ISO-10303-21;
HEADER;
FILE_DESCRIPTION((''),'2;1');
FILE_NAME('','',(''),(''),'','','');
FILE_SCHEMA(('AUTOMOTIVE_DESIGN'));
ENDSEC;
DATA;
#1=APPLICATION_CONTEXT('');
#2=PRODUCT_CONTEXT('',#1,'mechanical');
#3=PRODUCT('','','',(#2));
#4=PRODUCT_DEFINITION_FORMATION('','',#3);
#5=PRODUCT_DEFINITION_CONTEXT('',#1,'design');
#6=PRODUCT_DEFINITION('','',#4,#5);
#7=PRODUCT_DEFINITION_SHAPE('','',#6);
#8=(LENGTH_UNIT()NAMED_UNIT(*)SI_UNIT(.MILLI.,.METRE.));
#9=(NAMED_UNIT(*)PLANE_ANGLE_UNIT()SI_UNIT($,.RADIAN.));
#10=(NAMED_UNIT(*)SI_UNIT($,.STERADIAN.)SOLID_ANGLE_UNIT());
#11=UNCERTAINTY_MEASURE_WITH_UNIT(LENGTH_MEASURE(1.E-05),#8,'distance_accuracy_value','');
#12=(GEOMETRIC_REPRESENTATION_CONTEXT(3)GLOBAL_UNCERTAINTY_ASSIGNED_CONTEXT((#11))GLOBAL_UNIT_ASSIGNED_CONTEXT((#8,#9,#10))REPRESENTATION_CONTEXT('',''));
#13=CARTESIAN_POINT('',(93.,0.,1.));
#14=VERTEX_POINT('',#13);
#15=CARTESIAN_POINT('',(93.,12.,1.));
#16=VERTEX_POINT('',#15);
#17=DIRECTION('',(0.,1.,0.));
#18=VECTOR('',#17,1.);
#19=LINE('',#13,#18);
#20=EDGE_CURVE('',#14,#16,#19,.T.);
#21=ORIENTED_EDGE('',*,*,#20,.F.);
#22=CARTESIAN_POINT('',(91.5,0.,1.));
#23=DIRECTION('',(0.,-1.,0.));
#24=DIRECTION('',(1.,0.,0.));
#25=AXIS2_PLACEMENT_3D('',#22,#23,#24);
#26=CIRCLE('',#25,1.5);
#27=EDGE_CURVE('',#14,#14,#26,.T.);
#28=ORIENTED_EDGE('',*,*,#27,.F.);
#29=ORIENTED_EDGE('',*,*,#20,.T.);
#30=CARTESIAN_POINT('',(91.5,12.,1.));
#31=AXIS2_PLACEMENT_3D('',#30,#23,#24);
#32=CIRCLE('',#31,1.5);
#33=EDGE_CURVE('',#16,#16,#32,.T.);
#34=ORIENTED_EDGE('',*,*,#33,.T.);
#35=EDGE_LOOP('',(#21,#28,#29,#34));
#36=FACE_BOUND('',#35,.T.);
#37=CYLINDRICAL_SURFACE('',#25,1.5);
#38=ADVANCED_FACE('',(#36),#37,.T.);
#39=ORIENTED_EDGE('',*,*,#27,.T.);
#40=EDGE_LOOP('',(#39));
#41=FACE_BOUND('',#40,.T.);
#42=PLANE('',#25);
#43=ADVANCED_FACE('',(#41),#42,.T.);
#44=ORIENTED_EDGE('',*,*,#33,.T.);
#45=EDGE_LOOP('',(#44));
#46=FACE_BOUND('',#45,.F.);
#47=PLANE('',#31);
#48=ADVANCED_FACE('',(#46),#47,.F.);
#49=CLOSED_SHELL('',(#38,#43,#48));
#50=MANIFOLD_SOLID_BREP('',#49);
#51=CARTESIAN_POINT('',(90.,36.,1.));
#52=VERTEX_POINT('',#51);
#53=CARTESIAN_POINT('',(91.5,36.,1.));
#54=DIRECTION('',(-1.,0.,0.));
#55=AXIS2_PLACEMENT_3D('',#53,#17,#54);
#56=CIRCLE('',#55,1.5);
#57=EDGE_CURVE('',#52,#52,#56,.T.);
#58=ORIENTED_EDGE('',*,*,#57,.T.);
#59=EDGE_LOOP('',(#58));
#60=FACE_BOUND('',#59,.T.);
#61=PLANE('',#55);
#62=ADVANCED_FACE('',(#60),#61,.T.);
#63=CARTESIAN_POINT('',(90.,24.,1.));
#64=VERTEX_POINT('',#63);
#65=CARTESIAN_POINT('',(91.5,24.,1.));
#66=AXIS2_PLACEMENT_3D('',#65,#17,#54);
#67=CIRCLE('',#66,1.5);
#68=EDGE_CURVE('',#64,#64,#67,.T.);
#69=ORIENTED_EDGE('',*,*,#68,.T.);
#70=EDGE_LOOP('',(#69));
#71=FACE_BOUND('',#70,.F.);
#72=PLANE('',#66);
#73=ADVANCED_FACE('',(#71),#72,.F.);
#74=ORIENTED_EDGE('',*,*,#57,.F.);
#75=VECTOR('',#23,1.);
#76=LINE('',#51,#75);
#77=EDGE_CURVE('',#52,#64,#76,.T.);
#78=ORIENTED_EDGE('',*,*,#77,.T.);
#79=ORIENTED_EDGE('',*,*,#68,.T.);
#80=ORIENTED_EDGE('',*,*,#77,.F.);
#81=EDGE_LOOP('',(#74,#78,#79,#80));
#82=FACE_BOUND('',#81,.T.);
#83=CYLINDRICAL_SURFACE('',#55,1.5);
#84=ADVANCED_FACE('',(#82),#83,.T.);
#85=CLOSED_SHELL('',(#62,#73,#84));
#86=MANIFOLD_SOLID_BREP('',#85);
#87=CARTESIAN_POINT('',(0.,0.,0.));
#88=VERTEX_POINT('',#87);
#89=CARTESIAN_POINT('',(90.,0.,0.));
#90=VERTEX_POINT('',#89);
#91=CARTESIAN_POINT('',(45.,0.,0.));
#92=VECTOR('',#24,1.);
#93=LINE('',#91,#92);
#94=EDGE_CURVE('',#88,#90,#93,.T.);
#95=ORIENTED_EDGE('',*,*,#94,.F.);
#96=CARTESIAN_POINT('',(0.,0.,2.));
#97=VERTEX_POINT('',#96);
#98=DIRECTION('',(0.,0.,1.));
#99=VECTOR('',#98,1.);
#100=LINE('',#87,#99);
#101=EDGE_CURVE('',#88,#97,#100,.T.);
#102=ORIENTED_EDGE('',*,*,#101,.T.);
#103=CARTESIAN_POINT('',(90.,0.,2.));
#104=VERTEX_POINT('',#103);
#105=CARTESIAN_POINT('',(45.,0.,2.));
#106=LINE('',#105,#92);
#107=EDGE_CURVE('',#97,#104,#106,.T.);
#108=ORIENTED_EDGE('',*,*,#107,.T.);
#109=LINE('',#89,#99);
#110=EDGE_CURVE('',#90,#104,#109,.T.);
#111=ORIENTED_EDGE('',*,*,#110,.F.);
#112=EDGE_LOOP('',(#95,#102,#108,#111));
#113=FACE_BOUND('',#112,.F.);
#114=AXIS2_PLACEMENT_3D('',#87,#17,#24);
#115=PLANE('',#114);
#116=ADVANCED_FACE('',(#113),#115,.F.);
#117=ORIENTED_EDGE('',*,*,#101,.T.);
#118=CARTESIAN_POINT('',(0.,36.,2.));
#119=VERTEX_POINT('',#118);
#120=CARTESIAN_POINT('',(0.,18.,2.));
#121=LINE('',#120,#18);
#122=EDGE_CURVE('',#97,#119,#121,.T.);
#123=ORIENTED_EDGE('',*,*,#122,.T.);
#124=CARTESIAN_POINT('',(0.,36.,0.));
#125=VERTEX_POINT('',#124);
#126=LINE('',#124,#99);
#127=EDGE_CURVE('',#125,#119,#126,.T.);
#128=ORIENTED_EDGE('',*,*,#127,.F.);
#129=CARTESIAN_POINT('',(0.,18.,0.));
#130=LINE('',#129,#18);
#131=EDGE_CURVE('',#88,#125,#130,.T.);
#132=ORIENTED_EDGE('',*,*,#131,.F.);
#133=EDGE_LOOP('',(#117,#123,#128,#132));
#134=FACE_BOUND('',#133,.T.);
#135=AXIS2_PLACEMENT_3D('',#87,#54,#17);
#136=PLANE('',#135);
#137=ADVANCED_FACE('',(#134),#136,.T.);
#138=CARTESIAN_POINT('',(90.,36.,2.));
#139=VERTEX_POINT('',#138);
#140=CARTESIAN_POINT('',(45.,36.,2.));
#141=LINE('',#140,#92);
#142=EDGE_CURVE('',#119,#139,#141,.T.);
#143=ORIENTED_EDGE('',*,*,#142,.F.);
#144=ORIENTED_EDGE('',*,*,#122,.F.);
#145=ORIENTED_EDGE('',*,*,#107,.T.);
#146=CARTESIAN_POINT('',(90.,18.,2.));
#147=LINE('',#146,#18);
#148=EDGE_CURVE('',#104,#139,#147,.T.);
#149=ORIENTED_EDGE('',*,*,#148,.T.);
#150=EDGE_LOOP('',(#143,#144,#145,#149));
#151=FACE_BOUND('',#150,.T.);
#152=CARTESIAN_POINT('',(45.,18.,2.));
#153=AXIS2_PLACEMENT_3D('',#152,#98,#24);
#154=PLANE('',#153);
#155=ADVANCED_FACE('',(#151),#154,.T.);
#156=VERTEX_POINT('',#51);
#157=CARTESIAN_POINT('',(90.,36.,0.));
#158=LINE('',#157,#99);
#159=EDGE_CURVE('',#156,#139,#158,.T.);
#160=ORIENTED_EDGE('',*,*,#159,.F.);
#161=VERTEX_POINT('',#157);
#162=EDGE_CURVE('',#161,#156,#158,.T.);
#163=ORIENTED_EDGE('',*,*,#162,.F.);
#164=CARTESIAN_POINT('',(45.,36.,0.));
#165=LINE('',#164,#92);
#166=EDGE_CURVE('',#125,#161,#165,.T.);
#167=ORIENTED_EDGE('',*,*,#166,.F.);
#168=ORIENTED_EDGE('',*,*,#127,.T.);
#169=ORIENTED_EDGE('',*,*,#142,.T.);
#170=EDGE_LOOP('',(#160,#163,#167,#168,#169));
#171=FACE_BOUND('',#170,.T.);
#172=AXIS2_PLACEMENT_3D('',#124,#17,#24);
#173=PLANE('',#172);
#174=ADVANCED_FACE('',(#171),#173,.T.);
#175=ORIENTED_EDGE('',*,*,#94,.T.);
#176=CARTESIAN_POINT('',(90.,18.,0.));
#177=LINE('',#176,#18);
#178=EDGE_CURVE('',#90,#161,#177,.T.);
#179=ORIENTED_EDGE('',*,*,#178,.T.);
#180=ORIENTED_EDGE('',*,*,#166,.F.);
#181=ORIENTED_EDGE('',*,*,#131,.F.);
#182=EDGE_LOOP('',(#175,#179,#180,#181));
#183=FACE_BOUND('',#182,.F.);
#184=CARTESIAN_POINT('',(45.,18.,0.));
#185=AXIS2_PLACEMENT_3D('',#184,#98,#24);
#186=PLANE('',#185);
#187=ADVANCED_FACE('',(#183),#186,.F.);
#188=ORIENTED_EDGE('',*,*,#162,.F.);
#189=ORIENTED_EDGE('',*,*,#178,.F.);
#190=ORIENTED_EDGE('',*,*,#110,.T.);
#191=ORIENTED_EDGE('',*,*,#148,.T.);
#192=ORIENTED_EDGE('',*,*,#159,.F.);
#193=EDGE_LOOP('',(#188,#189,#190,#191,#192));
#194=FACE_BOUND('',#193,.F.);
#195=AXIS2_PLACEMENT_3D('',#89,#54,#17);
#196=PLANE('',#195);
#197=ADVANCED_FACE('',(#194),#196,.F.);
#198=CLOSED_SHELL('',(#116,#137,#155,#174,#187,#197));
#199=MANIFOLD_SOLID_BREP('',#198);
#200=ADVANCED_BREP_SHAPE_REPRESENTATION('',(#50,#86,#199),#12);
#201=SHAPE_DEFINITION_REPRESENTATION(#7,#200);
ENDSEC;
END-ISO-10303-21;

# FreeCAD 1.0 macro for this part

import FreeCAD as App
import Part
import Sketcher
Q = App.Units.Quantity

doc = App.newDocument("Part")
body = doc.addObject("PartDesign::Body", "Body")
body.AllowCompound = True

# Sketch on XY plane
sketch1 = body.newObject("Sketcher::SketchObject", "Sketch")
sketch1.AttachmentSupport = (doc.getObject("XY_Plane"), [""])
sketch1.MapMode = "FlatFace"
sketch1.addGeometry([
    Part.LineSegment(App.Vector(0, 36, 0), App.Vector(0, 0, 0)),
    Part.LineSegment(App.Vector(0, 0, 0), App.Vector(90, 0, 0)),
    Part.LineSegment(App.Vector(90, 0, 0), App.Vector(90, 36, 0)),
    Part.LineSegment(App.Vector(90, 36, 0), App.Vector(0, 36, 0)),
], False)
sketch1.addConstraint([
    Sketcher.Constraint("Coincident", 0, 2, 1, 1),
    Sketcher.Constraint("Coincident", 1, 2, 2, 1),
    Sketcher.Constraint("Coincident", 2, 2, 3, 1),
    Sketcher.Constraint("Coincident", 3, 2, 0, 1),
    Sketcher.Constraint("Vertical", 0),
    Sketcher.Constraint("Horizontal", 1),
    Sketcher.Constraint("Vertical", 2),
    Sketcher.Constraint("Horizontal", 3),
    Sketcher.Constraint("Coincident", 0, 2, -1, 1),
    Sketcher.Constraint("DistanceX", 1, 1, 1, 2, Q("90 mm")),
    Sketcher.Constraint("DistanceY", 0, 2, 0, 1, Q("36 mm")),
])
pad1 = body.newObject("PartDesign::Pad", "Pad")
pad1.Profile = sketch1
pad1.Length = 2

# Sketch on XZ plane
sketch2 = body.newObject("Sketcher::SketchObject", "Sketch001")
sketch2.AttachmentSupport = (doc.getObject("XZ_Plane"), [""])
sketch2.MapMode = "FlatFace"
sketch2.AttachmentOffset = App.Placement(App.Vector(0, 0, -36), App.Rotation())
sketch2.addGeometry(Part.Circle(App.Vector(91.5, 1, 0), App.Vector(0, 0, 1), 1.5), False)
sketch2.addConstraint([
    Sketcher.Constraint("Diameter", 0, Q("3 mm")),
    Sketcher.Constraint("DistanceY", -1, 1, 0, 3, Q("1 mm")),
    Sketcher.Constraint("DistanceX", -1, 1, 0, 3, Q("91.5 mm")),
])
pad2 = body.newObject("PartDesign::Pad", "Pad001")
pad2.Profile = sketch2
pad2.Length = 12
body2 = doc.addObject("PartDesign::Body", "Body001")

# Sketch on XZ plane
sketch3 = body2.newObject("Sketcher::SketchObject", "Sketch002")
sketch3.AttachmentSupport = (doc.getObject("XZ_Plane001"), [""])
sketch3.MapMode = "FlatFace"
sketch3.addGeometry(Part.Circle(App.Vector(91.5, 1, 0), App.Vector(0, 0, 1), 1.5), False)
sketch3.addConstraint([
    Sketcher.Constraint("Diameter", 0, Q("3 mm")),
    Sketcher.Constraint("DistanceY", -1, 1, 0, 3, Q("1 mm")),
    Sketcher.Constraint("DistanceX", -1, 1, 0, 3, Q("91.5 mm")),
])
pad3 = body2.newObject("PartDesign::Pad", "Pad002")
pad3.Profile = sketch3
pad3.Length = 12
pad3.Reversed = True

doc.recompute()
